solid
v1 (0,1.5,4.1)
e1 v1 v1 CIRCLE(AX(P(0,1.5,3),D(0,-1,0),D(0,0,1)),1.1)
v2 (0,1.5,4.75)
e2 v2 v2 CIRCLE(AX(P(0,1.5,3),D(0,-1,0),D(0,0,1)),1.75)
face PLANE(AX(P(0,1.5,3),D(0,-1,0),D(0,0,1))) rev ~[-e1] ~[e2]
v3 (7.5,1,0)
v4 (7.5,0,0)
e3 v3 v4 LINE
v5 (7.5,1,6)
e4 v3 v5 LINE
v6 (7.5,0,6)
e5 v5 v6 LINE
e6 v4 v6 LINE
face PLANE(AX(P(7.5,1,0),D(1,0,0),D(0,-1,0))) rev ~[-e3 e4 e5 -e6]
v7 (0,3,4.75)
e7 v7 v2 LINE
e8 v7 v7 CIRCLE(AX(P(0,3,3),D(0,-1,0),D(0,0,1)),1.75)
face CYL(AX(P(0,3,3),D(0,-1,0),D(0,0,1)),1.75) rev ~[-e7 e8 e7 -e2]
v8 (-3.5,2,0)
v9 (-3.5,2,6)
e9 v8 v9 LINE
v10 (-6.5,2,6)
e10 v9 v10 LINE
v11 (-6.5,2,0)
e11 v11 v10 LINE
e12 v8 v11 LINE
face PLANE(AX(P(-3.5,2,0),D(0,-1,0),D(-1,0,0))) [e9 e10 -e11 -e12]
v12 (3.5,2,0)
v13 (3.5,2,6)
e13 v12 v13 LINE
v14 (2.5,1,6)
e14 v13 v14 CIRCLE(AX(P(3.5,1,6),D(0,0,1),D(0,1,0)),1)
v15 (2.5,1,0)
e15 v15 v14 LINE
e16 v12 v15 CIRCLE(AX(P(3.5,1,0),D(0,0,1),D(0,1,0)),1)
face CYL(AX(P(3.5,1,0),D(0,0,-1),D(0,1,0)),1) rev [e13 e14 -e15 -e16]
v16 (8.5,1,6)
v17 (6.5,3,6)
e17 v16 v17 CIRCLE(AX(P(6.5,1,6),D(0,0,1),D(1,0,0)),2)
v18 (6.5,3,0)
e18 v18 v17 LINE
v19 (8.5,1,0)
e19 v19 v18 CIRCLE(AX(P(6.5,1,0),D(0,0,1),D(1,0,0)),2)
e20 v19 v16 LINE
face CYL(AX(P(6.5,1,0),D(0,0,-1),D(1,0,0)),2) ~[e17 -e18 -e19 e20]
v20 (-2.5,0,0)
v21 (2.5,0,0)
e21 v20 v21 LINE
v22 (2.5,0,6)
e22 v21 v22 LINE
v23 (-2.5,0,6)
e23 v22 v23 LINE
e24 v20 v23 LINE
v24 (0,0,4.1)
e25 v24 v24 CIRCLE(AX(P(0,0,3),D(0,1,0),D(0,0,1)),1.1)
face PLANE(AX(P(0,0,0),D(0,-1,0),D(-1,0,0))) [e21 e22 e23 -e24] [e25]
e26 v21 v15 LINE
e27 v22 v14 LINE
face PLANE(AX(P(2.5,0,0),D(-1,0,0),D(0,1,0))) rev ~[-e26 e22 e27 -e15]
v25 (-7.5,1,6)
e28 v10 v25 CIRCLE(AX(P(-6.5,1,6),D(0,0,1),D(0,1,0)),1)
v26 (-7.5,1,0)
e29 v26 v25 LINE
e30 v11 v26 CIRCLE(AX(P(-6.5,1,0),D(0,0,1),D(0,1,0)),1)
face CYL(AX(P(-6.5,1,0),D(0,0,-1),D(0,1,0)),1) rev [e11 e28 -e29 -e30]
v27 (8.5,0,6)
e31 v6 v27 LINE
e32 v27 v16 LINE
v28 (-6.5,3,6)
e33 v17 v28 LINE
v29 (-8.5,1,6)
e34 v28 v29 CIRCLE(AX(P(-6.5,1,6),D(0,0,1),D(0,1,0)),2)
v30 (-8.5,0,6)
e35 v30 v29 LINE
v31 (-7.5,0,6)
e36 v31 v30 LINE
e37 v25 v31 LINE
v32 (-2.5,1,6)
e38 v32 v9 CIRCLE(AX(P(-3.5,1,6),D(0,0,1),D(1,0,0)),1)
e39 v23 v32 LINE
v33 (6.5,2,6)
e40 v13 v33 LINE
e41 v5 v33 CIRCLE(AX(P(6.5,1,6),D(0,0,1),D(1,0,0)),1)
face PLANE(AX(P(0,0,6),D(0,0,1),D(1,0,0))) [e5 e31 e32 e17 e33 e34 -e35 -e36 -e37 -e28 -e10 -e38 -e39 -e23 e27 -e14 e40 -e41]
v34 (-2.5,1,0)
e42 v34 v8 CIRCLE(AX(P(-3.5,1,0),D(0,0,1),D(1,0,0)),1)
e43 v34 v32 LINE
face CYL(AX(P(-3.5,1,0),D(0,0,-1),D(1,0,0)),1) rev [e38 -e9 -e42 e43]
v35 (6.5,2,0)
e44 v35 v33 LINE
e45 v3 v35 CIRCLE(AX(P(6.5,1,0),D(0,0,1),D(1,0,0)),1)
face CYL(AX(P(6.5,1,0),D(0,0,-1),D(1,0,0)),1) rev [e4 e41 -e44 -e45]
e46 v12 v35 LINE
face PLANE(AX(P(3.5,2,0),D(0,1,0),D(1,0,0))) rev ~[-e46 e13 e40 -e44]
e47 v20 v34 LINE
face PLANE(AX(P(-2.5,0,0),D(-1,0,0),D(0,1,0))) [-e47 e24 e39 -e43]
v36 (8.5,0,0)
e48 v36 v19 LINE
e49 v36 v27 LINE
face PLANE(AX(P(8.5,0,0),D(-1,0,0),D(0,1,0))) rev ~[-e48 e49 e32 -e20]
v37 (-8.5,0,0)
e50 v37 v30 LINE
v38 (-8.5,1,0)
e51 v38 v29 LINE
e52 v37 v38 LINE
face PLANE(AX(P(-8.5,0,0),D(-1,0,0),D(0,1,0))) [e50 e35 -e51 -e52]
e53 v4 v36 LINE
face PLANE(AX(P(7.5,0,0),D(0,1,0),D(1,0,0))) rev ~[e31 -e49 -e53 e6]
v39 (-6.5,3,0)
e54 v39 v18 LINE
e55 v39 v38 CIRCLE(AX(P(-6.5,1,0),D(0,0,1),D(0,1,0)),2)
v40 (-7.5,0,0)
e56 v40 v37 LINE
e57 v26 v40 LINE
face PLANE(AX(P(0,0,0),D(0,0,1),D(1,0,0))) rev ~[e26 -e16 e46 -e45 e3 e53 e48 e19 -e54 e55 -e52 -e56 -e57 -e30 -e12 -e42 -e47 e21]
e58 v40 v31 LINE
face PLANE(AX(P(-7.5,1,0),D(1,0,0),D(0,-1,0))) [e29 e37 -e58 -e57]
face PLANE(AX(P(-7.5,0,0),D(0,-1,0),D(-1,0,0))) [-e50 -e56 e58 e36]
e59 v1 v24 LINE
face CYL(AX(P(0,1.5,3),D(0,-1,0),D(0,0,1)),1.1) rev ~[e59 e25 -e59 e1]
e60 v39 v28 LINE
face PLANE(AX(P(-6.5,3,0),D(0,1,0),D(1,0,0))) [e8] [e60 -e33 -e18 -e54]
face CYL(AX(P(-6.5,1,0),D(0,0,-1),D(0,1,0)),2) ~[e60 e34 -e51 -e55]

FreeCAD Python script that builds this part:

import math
import FreeCAD as App
import Part
import Sketcher

doc = App.newDocument("Part")
body = doc.addObject("PartDesign::Body", "Body")

sketch1 = body.newObject("Sketcher::SketchObject", "Sketch")
sketch1.AttachmentSupport = (doc.getObject("XY_Plane"), [""])
sketch1.MapMode = "FlatFace"
sketch1.addGeometry(Part.LineSegment(App.Vector(-2.5, 1, 0), App.Vector(-2.5, 0, 0)), False)
sketch1.addGeometry(Part.LineSegment(App.Vector(-2.5, 0, 0), App.Vector(2.5, 0, 0)), False)
sketch1.addGeometry(Part.LineSegment(App.Vector(2.5, 0, 0), App.Vector(2.5, 1, 0)), False)
sketch1.addGeometry(Part.ArcOfCircle(Part.Circle(App.Vector(3.5, 1, 0), App.Vector(0, 0, 1), 1), math.radians(90), math.radians(180)), False)
sketch1.addGeometry(Part.LineSegment(App.Vector(3.5, 2, 0), App.Vector(6.5, 2, 0)), False)
sketch1.addGeometry(Part.ArcOfCircle(Part.Circle(App.Vector(6.5, 1, 0), App.Vector(0, 0, 1), 1), math.radians(0), math.radians(90)), False)
sketch1.addGeometry(Part.LineSegment(App.Vector(7.5, 1, 0), App.Vector(7.5, 0, 0)), False)
sketch1.addGeometry(Part.LineSegment(App.Vector(7.5, 0, 0), App.Vector(8.5, 0, 0)), False)
sketch1.addGeometry(Part.LineSegment(App.Vector(8.5, 0, 0), App.Vector(8.5, 1, 0)), False)
sketch1.addGeometry(Part.ArcOfCircle(Part.Circle(App.Vector(6.5, 1, 0), App.Vector(0, 0, 1), 2), math.radians(0), math.radians(90)), False)
sketch1.addGeometry(Part.LineSegment(App.Vector(6.5, 3, 0), App.Vector(-6.5, 3, 0)), False)
sketch1.addGeometry(Part.ArcOfCircle(Part.Circle(App.Vector(-6.5, 1, 0), App.Vector(0, 0, 1), 2), math.radians(90), math.radians(180)), False)
sketch1.addGeometry(Part.LineSegment(App.Vector(-8.5, 1, 0), App.Vector(-8.5, 0, 0)), False)
sketch1.addGeometry(Part.LineSegment(App.Vector(-8.5, 0, 0), App.Vector(-7.5, 0, 0)), False)
sketch1.addGeometry(Part.LineSegment(App.Vector(-7.5, 0, 0), App.Vector(-7.5, 1, 0)), False)
sketch1.addGeometry(Part.ArcOfCircle(Part.Circle(App.Vector(-6.5, 1, 0), App.Vector(0, 0, 1), 1), math.radians(90), math.radians(180)), False)
sketch1.addGeometry(Part.LineSegment(App.Vector(-6.5, 2, 0), App.Vector(-3.5, 2, 0)), False)
sketch1.addGeometry(Part.ArcOfCircle(Part.Circle(App.Vector(-3.5, 1, 0), App.Vector(0, 0, 1), 1), math.radians(0), math.radians(90)), False)
sketch1.addConstraint(Sketcher.Constraint("Coincident", 0, 2, 1, 1))
sketch1.addConstraint(Sketcher.Constraint("Coincident", 1, 2, 2, 1))
sketch1.addConstraint(Sketcher.Constraint("Tangent", 2, 2, 3, 2))
sketch1.addConstraint(Sketcher.Constraint("Tangent", 3, 1, 4, 1))
sketch1.addConstraint(Sketcher.Constraint("Tangent", 4, 2, 5, 2))
sketch1.addConstraint(Sketcher.Constraint("Tangent", 5, 1, 6, 1))
sketch1.addConstraint(Sketcher.Constraint("Coincident", 6, 2, 7, 1))
sketch1.addConstraint(Sketcher.Constraint("Coincident", 7, 2, 8, 1))
sketch1.addConstraint(Sketcher.Constraint("Tangent", 8, 2, 9, 1))
sketch1.addConstraint(Sketcher.Constraint("Tangent", 9, 2, 10, 1))
sketch1.addConstraint(Sketcher.Constraint("Tangent", 10, 2, 11, 1))
sketch1.addConstraint(Sketcher.Constraint("Tangent", 11, 2, 12, 1))
sketch1.addConstraint(Sketcher.Constraint("Coincident", 12, 2, 13, 1))
sketch1.addConstraint(Sketcher.Constraint("Coincident", 13, 2, 14, 1))
sketch1.addConstraint(Sketcher.Constraint("Tangent", 14, 2, 15, 2))
sketch1.addConstraint(Sketcher.Constraint("Tangent", 15, 1, 16, 1))
sketch1.addConstraint(Sketcher.Constraint("Tangent", 16, 2, 17, 2))
sketch1.addConstraint(Sketcher.Constraint("Tangent", 17, 1, 0, 1))
sketch1.addConstraint(Sketcher.Constraint("Vertical", 0))
sketch1.addConstraint(Sketcher.Constraint("Horizontal", 1))
sketch1.addConstraint(Sketcher.Constraint("Vertical", 2))
sketch1.addConstraint(Sketcher.Constraint("Horizontal", 4))
sketch1.addConstraint(Sketcher.Constraint("Vertical", 6))
sketch1.addConstraint(Sketcher.Constraint("Horizontal", 7))
sketch1.addConstraint(Sketcher.Constraint("Vertical", 8))
sketch1.addConstraint(Sketcher.Constraint("Horizontal", 10))
sketch1.addConstraint(Sketcher.Constraint("Vertical", 12))
sketch1.addConstraint(Sketcher.Constraint("Horizontal", 13))
sketch1.addConstraint(Sketcher.Constraint("Vertical", 14))
sketch1.addConstraint(Sketcher.Constraint("Horizontal", 16))
sketch1.addConstraint(Sketcher.Constraint("Coincident", 9, 3, 5, 3))
sketch1.addConstraint(Sketcher.Constraint("Coincident", 15, 3, 11, 3))
sketch1.addConstraint(Sketcher.Constraint("Equal", 3, 5))
sketch1.addConstraint(Sketcher.Constraint("Equal", 9, 11))
sketch1.addConstraint(Sketcher.Constraint("Equal", 5, 15))
sketch1.addConstraint(Sketcher.Constraint("Equal", 15, 17))
sketch1.addConstraint(Sketcher.Constraint("Symmetric", 0, 2, 1, 2, -1, 1))
sketch1.addConstraint(Sketcher.Constraint("Symmetric", 7, 2, 12, 2, -1, 1))
sketch1.addConstraint(Sketcher.Constraint("PointOnObject", 6, 2, -1))
sketch1.addConstraint(Sketcher.Constraint("Equal", 13, 0))
sketch1.addConstraint(Sketcher.Constraint("Radius", 3, 1.0))
sketch1.addConstraint(Sketcher.Constraint("Radius", 9, 2.0))
sketch1.addConstraint(Sketcher.Constraint("DistanceX", 1, 1, 1, 2, 5.0))
sketch1.addConstraint(Sketcher.Constraint("DistanceX", 11, 2, 17, 3, 5.0))
pad1 = body.newObject("PartDesign::Pad", "Pad")
pad1.Profile = sketch1
pad1.Length = 6

sketch2 = body.newObject("Sketcher::SketchObject", "Sketch001")
sketch2.AttachmentSupport = (doc.getObject("XZ_Plane"), [""])
sketch2.MapMode = "FlatFace"
sketch2.AttachmentOffset = App.Placement(App.Vector(0, 0, -3), App.Rotation())
sketch2.addGeometry(Part.Circle(App.Vector(0, 3, 0), App.Vector(0, 0, 1), 1.1), False)
sketch2.addConstraint(Sketcher.Constraint("PointOnObject", 0, 3, -2))
sketch2.addConstraint(Sketcher.Constraint("Diameter", 0, 2.2))
sketch2.addConstraint(Sketcher.Constraint("DistanceY", -1, 1, 0, 3, 3.0))
doc.recompute()
hole = body.newObject("PartDesign::Hole", "Hole")
hole.Profile = sketch2
hole.ThreadType = "None"
hole.Diameter = 2.2
hole.DepthType = "ThroughAll"
hole.HoleCutType = "Counterbore"
hole.HoleCutDiameter = 3.5
hole.HoleCutDepth = 1.5
hole.Reversed = True

doc.recompute()
